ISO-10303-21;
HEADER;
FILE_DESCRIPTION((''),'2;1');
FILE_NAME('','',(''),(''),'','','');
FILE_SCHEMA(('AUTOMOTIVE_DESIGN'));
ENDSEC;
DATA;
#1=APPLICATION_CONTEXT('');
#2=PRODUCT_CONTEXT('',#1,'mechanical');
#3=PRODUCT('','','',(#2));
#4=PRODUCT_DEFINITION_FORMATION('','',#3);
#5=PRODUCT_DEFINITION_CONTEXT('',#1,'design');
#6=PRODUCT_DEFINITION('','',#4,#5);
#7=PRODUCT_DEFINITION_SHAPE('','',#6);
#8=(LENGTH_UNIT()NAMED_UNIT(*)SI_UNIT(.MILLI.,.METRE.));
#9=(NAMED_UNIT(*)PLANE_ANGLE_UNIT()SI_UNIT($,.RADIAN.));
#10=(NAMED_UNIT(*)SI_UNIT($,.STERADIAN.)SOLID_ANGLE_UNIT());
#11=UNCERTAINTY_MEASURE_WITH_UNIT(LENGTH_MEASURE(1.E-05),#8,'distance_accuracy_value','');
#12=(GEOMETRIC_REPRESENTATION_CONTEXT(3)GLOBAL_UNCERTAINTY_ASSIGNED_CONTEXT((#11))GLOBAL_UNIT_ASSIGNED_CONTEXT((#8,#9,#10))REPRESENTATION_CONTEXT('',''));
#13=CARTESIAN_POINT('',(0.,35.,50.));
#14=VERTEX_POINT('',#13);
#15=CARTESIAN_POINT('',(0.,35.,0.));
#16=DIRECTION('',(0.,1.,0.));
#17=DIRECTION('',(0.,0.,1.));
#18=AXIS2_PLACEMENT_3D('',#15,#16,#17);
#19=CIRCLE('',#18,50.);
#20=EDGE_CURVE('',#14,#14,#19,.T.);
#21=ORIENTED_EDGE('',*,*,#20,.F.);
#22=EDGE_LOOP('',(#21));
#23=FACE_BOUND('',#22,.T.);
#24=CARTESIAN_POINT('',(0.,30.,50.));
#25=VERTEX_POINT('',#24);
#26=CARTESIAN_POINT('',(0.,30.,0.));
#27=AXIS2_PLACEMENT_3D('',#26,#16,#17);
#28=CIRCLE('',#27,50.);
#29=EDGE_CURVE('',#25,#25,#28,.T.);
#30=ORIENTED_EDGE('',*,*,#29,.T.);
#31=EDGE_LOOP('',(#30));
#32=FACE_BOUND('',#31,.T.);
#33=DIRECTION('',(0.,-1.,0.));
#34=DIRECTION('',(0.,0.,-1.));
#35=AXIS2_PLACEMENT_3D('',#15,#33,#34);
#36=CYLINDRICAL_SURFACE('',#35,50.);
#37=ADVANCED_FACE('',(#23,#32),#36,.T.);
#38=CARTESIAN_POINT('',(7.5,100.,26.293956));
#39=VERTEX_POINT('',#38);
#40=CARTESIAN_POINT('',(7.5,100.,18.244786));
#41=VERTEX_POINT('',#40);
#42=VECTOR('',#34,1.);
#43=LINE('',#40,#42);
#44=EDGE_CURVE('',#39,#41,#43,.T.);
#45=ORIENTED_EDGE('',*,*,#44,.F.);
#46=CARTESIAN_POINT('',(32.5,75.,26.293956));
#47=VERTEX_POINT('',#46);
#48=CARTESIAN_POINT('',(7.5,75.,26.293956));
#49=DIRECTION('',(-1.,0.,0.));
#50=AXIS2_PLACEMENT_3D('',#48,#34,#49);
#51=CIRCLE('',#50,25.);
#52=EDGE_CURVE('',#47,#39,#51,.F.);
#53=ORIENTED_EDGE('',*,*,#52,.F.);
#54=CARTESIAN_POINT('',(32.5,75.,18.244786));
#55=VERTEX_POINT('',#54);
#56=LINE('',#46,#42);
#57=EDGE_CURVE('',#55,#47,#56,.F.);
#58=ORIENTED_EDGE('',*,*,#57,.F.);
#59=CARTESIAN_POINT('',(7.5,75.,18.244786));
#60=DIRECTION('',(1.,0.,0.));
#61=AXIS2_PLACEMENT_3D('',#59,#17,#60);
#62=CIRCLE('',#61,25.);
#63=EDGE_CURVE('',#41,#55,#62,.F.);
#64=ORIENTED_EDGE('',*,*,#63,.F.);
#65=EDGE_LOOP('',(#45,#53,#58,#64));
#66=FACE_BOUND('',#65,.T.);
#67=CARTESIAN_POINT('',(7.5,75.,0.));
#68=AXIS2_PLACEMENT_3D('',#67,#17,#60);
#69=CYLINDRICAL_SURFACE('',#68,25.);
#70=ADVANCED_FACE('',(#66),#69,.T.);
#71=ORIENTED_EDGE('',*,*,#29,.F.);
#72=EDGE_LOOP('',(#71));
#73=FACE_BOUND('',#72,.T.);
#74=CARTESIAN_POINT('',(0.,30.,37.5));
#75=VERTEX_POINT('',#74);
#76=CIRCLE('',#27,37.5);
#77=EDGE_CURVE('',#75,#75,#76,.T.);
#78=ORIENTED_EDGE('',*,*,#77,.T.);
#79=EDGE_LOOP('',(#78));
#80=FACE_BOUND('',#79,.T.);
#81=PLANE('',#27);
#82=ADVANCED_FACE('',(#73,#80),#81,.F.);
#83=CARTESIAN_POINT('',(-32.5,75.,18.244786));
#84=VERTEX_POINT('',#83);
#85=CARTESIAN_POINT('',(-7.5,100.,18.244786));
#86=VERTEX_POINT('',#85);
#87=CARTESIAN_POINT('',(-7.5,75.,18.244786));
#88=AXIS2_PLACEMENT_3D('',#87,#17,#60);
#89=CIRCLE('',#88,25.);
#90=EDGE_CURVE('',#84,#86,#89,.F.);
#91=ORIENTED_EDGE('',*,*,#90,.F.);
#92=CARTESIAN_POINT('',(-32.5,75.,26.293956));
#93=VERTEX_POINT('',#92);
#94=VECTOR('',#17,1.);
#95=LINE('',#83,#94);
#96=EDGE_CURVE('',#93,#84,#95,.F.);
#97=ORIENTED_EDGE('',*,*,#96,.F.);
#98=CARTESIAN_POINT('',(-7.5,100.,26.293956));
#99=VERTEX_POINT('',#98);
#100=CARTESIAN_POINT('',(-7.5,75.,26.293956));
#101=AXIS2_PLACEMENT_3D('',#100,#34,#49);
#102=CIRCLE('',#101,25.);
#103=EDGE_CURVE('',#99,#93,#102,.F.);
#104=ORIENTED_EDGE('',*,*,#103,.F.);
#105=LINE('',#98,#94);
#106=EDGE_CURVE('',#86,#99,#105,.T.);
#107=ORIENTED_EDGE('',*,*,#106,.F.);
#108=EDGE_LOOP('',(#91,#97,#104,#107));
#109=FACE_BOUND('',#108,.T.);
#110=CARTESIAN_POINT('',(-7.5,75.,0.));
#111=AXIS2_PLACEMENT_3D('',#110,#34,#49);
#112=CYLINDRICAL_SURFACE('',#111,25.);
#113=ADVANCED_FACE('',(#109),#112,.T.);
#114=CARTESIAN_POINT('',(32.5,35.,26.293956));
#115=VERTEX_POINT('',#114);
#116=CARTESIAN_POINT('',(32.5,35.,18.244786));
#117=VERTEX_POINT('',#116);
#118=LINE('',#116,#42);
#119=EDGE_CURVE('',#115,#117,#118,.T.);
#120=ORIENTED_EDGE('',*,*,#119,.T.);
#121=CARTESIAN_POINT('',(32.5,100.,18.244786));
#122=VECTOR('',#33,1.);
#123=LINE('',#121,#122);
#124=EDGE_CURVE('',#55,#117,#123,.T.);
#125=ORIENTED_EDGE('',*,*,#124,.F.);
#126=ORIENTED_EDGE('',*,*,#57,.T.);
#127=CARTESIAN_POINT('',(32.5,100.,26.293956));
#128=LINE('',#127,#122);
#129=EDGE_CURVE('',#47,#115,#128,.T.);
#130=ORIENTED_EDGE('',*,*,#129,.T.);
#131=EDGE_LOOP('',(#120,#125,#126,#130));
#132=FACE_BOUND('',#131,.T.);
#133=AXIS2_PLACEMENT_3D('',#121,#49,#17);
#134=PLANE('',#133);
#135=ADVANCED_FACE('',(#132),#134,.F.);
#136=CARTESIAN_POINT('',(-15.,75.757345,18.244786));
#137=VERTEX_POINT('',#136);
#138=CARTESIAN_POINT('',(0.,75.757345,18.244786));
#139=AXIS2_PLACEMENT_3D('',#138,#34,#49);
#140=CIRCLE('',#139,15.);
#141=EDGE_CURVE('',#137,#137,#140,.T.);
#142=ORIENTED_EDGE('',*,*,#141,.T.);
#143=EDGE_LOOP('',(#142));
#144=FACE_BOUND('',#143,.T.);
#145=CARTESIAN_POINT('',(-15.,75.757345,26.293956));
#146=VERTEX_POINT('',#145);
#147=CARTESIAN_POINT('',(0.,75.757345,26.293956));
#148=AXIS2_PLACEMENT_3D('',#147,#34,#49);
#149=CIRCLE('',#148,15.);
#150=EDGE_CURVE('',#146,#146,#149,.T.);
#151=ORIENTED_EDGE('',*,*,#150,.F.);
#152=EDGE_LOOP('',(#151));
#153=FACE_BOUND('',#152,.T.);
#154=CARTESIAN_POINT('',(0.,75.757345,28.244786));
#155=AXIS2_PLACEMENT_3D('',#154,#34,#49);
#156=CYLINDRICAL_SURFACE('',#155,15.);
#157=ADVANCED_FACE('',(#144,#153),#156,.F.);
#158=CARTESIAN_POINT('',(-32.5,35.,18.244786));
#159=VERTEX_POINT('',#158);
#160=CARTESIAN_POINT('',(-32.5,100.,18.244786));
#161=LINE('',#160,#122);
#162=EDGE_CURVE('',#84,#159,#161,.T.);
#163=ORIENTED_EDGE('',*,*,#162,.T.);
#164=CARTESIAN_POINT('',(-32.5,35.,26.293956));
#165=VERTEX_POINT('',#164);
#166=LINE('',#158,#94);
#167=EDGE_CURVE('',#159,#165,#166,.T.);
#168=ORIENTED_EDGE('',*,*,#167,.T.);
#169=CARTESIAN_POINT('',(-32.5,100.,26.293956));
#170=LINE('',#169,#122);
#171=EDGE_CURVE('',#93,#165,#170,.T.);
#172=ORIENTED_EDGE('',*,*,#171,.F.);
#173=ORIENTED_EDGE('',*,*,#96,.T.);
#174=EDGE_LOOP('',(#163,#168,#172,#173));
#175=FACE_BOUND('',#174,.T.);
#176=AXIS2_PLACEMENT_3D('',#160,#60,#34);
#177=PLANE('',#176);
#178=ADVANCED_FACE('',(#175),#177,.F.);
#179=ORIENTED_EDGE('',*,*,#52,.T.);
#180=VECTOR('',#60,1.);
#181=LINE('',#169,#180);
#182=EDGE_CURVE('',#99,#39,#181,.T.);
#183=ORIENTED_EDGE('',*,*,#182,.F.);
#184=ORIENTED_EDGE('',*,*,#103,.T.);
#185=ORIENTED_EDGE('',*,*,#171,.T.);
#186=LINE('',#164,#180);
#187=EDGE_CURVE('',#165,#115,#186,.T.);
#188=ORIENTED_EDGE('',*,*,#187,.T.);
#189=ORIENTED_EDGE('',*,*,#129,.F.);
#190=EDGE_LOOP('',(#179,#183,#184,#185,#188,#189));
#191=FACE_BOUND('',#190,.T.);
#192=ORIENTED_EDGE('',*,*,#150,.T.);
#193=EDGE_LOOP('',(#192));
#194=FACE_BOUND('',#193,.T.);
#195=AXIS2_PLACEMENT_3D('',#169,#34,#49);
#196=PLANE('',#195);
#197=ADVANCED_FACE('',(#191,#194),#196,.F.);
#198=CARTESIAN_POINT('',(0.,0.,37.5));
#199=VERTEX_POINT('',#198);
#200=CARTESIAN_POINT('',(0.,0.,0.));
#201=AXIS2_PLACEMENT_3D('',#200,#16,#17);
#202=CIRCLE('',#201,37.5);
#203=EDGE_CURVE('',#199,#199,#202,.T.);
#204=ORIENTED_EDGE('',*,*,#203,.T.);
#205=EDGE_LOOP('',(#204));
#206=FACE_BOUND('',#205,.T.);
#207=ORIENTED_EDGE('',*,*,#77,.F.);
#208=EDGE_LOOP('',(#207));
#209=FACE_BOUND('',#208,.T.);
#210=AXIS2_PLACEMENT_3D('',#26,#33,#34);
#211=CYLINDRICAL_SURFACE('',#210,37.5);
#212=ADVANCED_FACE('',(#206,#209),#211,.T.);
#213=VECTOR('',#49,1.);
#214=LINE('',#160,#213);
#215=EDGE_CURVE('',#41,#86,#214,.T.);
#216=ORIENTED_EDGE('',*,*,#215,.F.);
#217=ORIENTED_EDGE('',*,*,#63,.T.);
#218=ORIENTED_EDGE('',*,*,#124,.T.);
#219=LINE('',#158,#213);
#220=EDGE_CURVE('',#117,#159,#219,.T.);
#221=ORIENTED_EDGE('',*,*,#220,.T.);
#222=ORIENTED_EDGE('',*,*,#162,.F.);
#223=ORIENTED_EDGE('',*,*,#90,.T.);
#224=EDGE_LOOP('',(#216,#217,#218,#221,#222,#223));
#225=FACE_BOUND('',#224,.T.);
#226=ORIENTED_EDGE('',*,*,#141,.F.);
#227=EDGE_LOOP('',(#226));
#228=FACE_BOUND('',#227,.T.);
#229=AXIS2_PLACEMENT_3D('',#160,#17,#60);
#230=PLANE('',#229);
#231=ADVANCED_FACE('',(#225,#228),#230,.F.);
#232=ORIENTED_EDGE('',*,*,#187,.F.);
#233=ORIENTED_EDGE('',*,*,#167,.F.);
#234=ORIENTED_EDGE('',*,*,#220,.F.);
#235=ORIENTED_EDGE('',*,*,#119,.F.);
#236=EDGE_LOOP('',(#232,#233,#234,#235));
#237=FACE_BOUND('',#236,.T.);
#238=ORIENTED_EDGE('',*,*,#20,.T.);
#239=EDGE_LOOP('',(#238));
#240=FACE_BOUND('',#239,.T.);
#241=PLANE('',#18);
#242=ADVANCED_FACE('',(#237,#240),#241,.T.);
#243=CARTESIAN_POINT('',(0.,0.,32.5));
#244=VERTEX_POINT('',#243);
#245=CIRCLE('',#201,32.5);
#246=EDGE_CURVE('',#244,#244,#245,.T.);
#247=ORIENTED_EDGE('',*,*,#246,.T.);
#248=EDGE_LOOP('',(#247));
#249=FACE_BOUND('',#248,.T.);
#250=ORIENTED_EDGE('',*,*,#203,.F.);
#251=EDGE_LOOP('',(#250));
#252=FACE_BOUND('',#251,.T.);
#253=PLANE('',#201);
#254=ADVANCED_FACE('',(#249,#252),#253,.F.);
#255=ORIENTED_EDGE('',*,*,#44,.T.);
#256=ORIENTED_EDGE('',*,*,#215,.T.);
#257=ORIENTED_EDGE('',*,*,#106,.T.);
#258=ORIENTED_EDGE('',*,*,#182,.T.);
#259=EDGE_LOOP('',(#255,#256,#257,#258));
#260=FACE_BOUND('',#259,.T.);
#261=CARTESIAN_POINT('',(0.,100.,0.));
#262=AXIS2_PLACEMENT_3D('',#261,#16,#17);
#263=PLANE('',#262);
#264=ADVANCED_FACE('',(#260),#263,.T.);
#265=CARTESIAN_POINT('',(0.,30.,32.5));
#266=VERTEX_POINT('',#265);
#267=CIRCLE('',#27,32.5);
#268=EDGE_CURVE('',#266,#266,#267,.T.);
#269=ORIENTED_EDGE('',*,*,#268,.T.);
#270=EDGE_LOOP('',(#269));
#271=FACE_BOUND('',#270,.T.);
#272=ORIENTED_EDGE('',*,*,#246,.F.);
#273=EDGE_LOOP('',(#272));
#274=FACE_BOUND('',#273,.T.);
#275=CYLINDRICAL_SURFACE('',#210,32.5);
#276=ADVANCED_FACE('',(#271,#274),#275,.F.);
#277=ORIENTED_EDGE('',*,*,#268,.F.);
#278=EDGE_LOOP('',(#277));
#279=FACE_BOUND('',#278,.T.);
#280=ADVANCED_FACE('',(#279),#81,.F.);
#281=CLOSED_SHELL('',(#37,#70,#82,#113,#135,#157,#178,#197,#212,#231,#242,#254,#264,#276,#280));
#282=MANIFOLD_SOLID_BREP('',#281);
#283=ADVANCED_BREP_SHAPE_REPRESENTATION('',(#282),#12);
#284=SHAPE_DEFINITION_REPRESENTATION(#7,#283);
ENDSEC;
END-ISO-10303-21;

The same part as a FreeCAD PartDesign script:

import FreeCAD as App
import Part
import Sketcher
Q = App.Units.Quantity


def edges_at(feature, points):
    """Names of the edges that pass closest to the given points."""
    edges = feature.Shape.Edges
    near = lambda p: min(range(len(edges)), key=lambda i: edges[i].distToShape(Part.Vertex(*p))[0])
    return sorted({f"Edge{near(p) + 1}" for p in points})

doc = App.newDocument("Part")
body = doc.addObject("PartDesign::Body", "Body")

# Sketch on XZ plane
sketch1 = body.newObject("Sketcher::SketchObject", "Sketch")
sketch1.AttachmentSupport = (doc.getObject("XZ_Plane"), [""])
sketch1.MapMode = "FlatFace"
sketch1.addGeometry(Part.Circle(App.Vector(0, 0, 0), App.Vector(0, 0, 1), 38), False)
sketch1.addGeometry(Part.Circle(App.Vector(0, 0, 0), App.Vector(0, 0, 1), 32), False)
sketch1.addConstraint(Sketcher.Constraint("Coincident", 0, 3, -1, 1))
sketch1.addConstraint(Sketcher.Constraint("Coincident", 1, 3, -1, 1))
sketch1.addConstraint(Sketcher.Constraint("Diameter", 0, Q("75 mm")))
sketch1.addConstraint(Sketcher.Constraint("Diameter", 1, Q("65 mm")))
pad1 = body.newObject("PartDesign::Pad", "Pad")
pad1.Profile = sketch1
pad1.Length = 30
pad1.Reversed = True

# Sketch on XZ plane
sketch2 = body.newObject("Sketcher::SketchObject", "Sketch001")
sketch2.AttachmentSupport = (doc.getObject("XZ_Plane"), [""])
sketch2.MapMode = "FlatFace"
sketch2.AttachmentOffset = App.Placement(App.Vector(0, 0, -30), App.Rotation())
sketch2.addGeometry(Part.Circle(App.Vector(0, 0, 0), App.Vector(0, 0, 1), 50), False)
sketch2.addConstraint(Sketcher.Constraint("Coincident", 0, 3, -1, 1))
sketch2.addConstraint(Sketcher.Constraint("Diameter", 0, Q("100 mm")))
pad2 = body.newObject("PartDesign::Pad", "Pad001")
pad2.Profile = sketch2
pad2.Length = 5
pad2.Reversed = True

# Sketch on XZ plane
sketch3 = body.newObject("Sketcher::SketchObject", "Sketch002")
sketch3.AttachmentSupport = (doc.getObject("XZ_Plane"), [""])
sketch3.MapMode = "FlatFace"
sketch3.AttachmentOffset = App.Placement(App.Vector(0, 0, -35), App.Rotation())
sketch3.addGeometry(Part.LineSegment(App.Vector(-32, 18, 0), App.Vector(-32, 26, 0)), False)
sketch3.addGeometry(Part.LineSegment(App.Vector(-32, 26, 0), App.Vector(32, 26, 0)), False)
sketch3.addGeometry(Part.LineSegment(App.Vector(32, 26, 0), App.Vector(32, 18, 0)), False)
sketch3.addGeometry(Part.LineSegment(App.Vector(32, 18, 0), App.Vector(-32, 18, 0)), False)
sketch3.addConstraint(Sketcher.Constraint("Coincident", 0, 2, 1, 1))
sketch3.addConstraint(Sketcher.Constraint("Coincident", 1, 2, 2, 1))
sketch3.addConstraint(Sketcher.Constraint("Coincident", 2, 2, 3, 1))
sketch3.addConstraint(Sketcher.Constraint("Coincident", 3, 2, 0, 1))
sketch3.addConstraint(Sketcher.Constraint("Vertical", 0))
sketch3.addConstraint(Sketcher.Constraint("Horizontal", 1))
sketch3.addConstraint(Sketcher.Constraint("Vertical", 2))
sketch3.addConstraint(Sketcher.Constraint("Horizontal", 3))
sketch3.addConstraint(Sketcher.Constraint("DistanceX", 1, 1, 1, 2, Q("65 mm")))
sketch3.addConstraint(Sketcher.Constraint("DistanceX", 0, 2, -1, 1, Q("32.5 mm")))
sketch3.addConstraint(Sketcher.Constraint("DistanceY", 0, 1, 0, 2, Q("8.04917 mm")))
sketch3.addConstraint(Sketcher.Constraint("DistanceY", -1, 1, 0, 2, Q("26.293956 mm")))
pad3 = body.newObject("PartDesign::Pad", "Pad002")
pad3.Profile = sketch3
pad3.Length = 65
pad3.Reversed = True
doc.recompute()

fillet = body.newObject("PartDesign::Fillet", "Fillet")
fillet.Base = (pad3, edges_at(pad3, [(-32.5, 100, 22.269), (32.5, 100, 22.269)]))
fillet.Radius = 25

# Sketch on XY plane
sketch4 = body.newObject("Sketcher::SketchObject", "Sketch003")
sketch4.AttachmentSupport = (doc.getObject("XY_Plane"), [""])
sketch4.MapMode = "FlatFace"
sketch4.AttachmentOffset = App.Placement(App.Vector(0, 0, 18.244786), App.Rotation())
sketch4.addGeometry(Part.Circle(App.Vector(0, 76, 0), App.Vector(0, 0, 1), 15), False)
sketch4.addConstraint(Sketcher.Constraint("PointOnObject", 0, 3, -2))
sketch4.addConstraint(Sketcher.Constraint("Diameter", 0, Q("30 mm")))
sketch4.addConstraint(Sketcher.Constraint("DistanceY", -1, 1, 0, 3, Q("75.757345 mm")))
pocket1 = body.newObject("PartDesign::Pocket", "Pocket")
pocket1.Profile = sketch4
pocket1.Length = 10
pocket1.Reversed = True

doc.recompute()
